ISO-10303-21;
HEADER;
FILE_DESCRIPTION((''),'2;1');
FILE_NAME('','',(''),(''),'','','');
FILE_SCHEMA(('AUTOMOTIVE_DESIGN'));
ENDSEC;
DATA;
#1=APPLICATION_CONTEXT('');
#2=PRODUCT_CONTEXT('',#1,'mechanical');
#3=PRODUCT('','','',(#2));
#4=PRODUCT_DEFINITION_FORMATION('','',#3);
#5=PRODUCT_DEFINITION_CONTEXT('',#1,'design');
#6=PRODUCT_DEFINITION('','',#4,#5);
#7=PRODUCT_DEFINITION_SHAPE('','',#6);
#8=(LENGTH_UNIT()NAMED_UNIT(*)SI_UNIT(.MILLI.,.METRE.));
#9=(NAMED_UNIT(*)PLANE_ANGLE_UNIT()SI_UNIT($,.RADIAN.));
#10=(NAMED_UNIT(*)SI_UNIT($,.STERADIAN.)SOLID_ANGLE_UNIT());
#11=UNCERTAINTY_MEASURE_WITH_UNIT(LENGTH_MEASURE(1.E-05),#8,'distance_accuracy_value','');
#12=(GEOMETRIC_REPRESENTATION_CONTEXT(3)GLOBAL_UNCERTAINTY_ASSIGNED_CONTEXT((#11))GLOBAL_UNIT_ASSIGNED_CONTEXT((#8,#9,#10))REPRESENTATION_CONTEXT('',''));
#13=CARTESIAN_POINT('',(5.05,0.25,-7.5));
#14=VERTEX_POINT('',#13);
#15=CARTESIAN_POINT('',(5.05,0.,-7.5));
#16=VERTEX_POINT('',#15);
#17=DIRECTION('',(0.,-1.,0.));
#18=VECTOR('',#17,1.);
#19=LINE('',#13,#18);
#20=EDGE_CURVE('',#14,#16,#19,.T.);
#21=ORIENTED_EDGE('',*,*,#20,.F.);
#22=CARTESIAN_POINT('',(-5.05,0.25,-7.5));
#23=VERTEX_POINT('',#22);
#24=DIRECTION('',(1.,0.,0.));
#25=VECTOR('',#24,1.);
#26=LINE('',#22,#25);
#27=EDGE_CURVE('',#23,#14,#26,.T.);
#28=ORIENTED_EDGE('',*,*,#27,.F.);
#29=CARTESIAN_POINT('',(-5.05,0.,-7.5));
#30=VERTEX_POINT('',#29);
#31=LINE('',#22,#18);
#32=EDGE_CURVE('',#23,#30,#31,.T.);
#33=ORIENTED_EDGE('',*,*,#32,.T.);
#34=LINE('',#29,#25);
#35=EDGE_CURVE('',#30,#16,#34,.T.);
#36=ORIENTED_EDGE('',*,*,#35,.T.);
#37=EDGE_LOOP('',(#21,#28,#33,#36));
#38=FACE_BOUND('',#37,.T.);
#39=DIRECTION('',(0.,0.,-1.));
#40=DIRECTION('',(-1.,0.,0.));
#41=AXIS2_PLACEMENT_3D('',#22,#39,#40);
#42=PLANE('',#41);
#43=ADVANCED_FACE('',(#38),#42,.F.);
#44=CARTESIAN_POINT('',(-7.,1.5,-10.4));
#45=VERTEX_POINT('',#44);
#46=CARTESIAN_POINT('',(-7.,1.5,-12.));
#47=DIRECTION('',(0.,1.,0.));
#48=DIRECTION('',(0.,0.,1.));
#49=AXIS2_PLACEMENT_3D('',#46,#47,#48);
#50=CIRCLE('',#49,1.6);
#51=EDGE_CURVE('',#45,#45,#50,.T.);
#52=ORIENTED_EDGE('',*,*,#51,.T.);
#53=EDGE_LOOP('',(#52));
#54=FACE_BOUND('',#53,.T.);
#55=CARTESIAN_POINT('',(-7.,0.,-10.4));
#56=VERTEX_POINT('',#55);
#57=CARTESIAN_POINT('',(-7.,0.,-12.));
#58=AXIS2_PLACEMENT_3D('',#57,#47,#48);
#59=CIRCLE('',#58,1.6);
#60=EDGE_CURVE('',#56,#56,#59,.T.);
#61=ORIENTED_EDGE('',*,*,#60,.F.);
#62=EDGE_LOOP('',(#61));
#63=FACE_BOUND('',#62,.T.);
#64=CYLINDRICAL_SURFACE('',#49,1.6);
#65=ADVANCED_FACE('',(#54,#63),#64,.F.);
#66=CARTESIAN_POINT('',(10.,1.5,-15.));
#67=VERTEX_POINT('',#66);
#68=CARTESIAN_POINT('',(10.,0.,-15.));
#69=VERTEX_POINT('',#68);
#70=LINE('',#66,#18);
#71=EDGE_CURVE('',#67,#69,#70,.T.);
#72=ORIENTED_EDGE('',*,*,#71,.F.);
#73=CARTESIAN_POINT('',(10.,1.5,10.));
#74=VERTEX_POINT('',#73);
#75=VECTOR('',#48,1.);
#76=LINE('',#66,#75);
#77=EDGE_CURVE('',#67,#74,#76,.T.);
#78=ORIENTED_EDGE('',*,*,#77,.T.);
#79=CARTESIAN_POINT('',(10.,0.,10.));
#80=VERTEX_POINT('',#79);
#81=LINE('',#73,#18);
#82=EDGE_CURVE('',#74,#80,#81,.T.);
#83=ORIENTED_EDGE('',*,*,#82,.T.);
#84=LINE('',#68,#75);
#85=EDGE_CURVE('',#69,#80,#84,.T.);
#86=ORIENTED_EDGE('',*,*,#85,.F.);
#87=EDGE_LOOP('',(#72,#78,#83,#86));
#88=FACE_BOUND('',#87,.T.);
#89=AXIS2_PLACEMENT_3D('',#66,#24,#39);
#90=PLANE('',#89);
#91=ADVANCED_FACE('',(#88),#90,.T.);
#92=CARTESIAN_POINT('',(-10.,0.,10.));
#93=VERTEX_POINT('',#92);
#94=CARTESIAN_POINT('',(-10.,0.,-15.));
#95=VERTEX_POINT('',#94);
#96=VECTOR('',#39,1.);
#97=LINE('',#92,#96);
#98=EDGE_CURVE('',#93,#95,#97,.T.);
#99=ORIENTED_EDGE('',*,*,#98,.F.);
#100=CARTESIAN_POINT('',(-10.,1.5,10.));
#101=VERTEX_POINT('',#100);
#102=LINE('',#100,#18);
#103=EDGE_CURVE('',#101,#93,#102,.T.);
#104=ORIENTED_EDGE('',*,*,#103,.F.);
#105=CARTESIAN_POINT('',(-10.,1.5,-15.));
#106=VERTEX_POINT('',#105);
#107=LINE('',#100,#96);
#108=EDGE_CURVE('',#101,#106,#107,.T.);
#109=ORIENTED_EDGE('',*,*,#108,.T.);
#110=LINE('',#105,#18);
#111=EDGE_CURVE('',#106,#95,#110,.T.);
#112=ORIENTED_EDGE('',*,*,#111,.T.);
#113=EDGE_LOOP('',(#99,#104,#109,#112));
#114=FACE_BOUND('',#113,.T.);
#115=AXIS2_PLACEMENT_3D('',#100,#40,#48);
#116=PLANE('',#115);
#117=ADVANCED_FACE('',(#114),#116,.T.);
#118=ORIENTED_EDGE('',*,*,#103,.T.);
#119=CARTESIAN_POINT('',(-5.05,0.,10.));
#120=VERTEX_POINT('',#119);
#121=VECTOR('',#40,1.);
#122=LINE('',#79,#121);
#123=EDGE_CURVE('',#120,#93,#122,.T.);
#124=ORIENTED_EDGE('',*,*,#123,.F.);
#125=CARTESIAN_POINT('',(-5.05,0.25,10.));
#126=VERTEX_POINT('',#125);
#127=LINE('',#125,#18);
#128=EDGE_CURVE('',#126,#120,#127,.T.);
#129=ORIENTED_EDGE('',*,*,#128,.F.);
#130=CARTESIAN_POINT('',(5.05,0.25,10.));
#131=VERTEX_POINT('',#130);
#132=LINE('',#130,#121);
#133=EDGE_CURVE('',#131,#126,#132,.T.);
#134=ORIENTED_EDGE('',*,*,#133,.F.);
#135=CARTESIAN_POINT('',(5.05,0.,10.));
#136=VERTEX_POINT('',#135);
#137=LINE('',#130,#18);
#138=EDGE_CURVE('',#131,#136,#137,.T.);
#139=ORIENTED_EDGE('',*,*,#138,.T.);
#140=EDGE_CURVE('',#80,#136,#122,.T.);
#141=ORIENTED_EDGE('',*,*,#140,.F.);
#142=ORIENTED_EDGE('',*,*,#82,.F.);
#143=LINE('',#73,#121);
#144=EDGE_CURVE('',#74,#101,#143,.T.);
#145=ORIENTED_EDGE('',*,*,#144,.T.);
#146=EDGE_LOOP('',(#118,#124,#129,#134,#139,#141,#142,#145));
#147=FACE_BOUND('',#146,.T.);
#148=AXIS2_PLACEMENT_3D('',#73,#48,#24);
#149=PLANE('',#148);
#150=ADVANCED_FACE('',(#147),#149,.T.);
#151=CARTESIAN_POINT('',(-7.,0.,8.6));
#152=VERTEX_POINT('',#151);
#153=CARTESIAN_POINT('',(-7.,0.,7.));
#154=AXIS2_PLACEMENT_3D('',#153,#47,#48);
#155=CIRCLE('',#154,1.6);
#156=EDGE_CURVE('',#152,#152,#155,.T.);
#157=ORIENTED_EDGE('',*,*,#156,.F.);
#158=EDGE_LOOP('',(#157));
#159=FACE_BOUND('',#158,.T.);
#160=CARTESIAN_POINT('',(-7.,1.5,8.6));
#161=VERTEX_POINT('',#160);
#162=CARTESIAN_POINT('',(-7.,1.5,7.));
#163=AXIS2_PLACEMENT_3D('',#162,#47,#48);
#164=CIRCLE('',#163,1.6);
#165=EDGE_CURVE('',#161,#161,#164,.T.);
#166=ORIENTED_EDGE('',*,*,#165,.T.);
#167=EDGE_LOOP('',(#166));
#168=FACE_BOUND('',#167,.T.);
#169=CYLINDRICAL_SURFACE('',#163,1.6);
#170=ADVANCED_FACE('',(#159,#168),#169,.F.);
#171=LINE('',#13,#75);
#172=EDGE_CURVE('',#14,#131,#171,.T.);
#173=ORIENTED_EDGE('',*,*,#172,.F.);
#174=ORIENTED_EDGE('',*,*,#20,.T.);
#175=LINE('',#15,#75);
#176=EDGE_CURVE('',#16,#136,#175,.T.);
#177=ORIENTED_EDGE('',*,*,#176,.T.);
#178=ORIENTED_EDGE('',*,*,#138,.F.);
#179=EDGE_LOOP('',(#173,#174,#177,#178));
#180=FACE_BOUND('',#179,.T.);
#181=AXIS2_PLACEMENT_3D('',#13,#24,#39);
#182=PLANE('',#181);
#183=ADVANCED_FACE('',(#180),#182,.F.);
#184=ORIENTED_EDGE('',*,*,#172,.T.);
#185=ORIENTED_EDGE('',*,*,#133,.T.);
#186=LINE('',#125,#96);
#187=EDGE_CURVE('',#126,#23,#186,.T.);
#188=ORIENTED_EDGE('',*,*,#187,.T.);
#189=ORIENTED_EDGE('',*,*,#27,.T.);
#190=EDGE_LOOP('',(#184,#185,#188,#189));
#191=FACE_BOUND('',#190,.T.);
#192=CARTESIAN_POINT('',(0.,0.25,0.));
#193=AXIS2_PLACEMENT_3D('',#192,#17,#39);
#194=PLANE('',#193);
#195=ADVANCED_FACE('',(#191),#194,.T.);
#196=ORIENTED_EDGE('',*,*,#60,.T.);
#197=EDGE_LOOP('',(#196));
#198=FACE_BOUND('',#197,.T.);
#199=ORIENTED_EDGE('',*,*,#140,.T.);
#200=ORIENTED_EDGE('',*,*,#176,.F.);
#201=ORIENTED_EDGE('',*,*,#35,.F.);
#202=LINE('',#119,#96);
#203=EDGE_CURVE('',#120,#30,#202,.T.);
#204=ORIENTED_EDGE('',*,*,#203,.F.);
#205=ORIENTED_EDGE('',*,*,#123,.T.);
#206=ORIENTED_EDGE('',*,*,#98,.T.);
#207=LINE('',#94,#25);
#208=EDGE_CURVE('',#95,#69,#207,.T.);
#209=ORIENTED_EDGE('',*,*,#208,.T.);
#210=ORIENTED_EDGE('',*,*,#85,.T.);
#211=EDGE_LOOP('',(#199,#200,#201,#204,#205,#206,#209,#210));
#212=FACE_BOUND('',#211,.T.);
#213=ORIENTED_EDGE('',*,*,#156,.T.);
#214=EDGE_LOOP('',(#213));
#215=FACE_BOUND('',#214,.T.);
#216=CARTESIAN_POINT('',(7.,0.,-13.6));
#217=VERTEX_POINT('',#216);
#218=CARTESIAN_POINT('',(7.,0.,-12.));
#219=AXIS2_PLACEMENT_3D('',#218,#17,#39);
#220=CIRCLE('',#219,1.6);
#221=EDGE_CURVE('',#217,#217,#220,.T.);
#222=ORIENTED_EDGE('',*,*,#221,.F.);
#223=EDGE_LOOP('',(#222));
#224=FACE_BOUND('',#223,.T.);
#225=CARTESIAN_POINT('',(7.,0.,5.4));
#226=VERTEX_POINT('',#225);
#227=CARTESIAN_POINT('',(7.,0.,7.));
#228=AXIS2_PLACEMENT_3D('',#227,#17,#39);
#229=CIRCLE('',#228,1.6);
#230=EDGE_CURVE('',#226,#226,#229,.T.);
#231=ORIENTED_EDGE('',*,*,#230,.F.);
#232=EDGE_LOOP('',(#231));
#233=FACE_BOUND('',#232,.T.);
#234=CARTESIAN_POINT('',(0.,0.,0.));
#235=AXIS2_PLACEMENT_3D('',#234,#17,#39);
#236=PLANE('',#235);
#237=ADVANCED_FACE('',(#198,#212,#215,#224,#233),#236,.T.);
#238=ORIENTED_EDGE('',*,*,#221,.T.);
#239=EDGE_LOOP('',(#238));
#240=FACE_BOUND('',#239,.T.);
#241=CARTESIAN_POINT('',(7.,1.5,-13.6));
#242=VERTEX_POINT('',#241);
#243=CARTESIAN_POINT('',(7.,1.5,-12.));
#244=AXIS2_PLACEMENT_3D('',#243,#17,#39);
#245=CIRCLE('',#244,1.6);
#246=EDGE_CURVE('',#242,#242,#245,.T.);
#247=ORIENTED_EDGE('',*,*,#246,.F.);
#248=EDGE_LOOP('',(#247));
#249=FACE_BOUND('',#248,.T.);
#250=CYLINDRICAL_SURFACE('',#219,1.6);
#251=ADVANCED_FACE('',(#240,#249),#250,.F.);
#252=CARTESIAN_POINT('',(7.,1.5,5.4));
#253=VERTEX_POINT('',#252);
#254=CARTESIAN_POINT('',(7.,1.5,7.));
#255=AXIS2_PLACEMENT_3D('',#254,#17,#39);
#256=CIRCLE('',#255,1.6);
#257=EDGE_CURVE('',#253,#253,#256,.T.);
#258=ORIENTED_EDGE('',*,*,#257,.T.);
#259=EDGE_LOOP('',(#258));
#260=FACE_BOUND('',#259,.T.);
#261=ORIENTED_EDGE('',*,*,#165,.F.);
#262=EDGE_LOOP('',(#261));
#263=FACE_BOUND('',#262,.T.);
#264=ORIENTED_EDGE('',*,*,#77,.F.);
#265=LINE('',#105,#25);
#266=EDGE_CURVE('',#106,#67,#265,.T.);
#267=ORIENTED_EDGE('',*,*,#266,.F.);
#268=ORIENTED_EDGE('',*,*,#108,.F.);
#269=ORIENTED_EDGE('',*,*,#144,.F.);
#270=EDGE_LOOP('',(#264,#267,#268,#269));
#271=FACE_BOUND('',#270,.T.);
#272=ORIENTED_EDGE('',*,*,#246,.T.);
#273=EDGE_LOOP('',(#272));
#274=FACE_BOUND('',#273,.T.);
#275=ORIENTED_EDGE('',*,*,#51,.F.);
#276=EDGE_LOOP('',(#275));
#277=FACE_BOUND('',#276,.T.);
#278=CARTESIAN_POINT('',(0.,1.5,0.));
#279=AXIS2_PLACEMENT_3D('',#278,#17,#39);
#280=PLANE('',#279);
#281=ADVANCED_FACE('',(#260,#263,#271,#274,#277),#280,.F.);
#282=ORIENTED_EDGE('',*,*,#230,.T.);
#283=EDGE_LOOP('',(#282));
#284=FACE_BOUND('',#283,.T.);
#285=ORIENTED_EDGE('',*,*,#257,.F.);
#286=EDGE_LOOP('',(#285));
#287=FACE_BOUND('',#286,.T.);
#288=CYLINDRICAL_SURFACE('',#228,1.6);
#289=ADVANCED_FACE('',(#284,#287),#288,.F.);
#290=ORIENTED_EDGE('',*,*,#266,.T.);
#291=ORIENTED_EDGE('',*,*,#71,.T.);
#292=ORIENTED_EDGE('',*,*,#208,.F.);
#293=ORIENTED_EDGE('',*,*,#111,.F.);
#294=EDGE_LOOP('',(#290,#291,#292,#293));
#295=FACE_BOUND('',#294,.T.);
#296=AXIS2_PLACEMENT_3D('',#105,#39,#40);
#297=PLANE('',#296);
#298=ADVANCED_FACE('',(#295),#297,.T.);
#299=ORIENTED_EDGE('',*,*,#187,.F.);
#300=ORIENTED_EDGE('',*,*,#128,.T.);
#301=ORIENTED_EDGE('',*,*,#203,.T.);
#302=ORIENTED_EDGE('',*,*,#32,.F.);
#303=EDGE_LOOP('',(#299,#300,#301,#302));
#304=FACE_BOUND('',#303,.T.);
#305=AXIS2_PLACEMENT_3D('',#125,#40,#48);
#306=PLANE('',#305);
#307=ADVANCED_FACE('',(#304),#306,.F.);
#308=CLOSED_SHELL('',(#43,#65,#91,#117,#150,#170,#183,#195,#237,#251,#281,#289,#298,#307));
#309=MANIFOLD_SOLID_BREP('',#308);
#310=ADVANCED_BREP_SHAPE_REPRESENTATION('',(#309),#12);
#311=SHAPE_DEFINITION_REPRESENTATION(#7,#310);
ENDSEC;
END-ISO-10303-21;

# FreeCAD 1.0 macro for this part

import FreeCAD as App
import Part
import Sketcher


def add_polygon(sketch, points):
    """Adds a closed chain of lines whose ends are joined by coincident constraints."""
    first, n = sketch.GeometryCount, len(points)
    for a, b in zip(points, points[1:] + points[:1]):
        sketch.addGeometry(Part.LineSegment(App.Vector(*a, 0), App.Vector(*b, 0)), False)
    for i in range(n):
        sketch.addConstraint(Sketcher.Constraint("Coincident", first + i, 2, first + (i + 1) % n, 1))

doc = App.newDocument("Part")
body = doc.addObject("PartDesign::Body", "Body")

# Sketch on XZ plane
sketch1 = doc.addObject("Sketcher::SketchObject", "Sketch")
body.addObject(sketch1)
sketch1.AttachmentSupport = (doc.XZ_Plane, [""])
sketch1.MapMode = "FlatFace"
add_polygon(sketch1, [(-10, 10), (-10, -15), (10, -15), (10, 10)])  # lines 0-3
sketch1.addConstraint([
    Sketcher.Constraint("Vertical", 0),
    Sketcher.Constraint("Horizontal", 1),
    Sketcher.Constraint("Vertical", 2),
    Sketcher.Constraint("Horizontal", 3),
    Sketcher.Constraint("DistanceX", 1, 1, 1, 2, 20.0),
    Sketcher.Constraint("DistanceY", 0, 2, 0, 1, 25.0),
    Sketcher.Constraint("DistanceX", 0, 2, -1, 1, 10.0),
    Sketcher.Constraint("DistanceY", 0, 2, -1, 1, 15.0),
])
pad1 = doc.addObject("PartDesign::Pad", "Pad")
body.addObject(pad1)
pad1.Profile = sketch1
pad1.Length = 1.5
pad1.Reversed = True

# Sketch on XZ plane
sketch2 = doc.addObject("Sketcher::SketchObject", "Sketch001")
body.addObject(sketch2)
sketch2.AttachmentSupport = (doc.XZ_Plane, [""])
sketch2.MapMode = "FlatFace"
add_polygon(sketch2, [(-5, 10), (-5, -8), (5, -8), (5, 10)])  # lines 0-3
sketch2.addConstraint([
    Sketcher.Constraint("Vertical", 0),
    Sketcher.Constraint("Horizontal", 1),
    Sketcher.Constraint("Vertical", 2),
    Sketcher.Constraint("Horizontal", 3),
    Sketcher.Constraint("DistanceX", 1, 1, 1, 2, 10.1),
    Sketcher.Constraint("DistanceY", 0, 2, 0, 1, 17.5),
    Sketcher.Constraint("DistanceY", -1, 1, 2, 2, 10.0),
    Sketcher.Constraint("DistanceX", 0, 2, -1, 1, 5.05),
])
pocket1 = doc.addObject("PartDesign::Pocket", "Pocket")
body.addObject(pocket1)
pocket1.Profile = sketch2
pocket1.Length = 0.25

# Sketch on XZ plane
sketch3 = doc.addObject("Sketcher::SketchObject", "Sketch002")
body.addObject(sketch3)
sketch3.AttachmentSupport = (doc.XZ_Plane, [""])
sketch3.MapMode = "FlatFace"
sketch3.addGeometry([
    Part.Circle(App.Vector(7, 7, 0), App.Vector(0, 0, 1), 1.6),
    Part.Circle(App.Vector(7, -12, 0), App.Vector(0, 0, 1), 1.6),
], False)
sketch3.addConstraint([
    Sketcher.Constraint("Equal", 0, 1),
    Sketcher.Constraint("Vertical", 0, 3, 1, 3),
    Sketcher.Constraint("Diameter", 0, 3.2),
    Sketcher.Constraint("DistanceX", -1, 1, 0, 3, 7.0),
    Sketcher.Constraint("DistanceY", -1, 1, 0, 3, 7.0),
    Sketcher.Constraint("DistanceY", 1, 3, -1, 1, 12.0),
])
doc.recompute()
hole = doc.addObject("PartDesign::Hole", "Hole")
body.addObject(hole)
hole.Profile = sketch3
hole.ThreadType = "None"
hole.Diameter = 3.2
hole.DepthType = "ThroughAll"

# Sketch on XZ plane
sketch4 = doc.addObject("Sketcher::SketchObject", "Sketch003")
body.addObject(sketch4)
sketch4.AttachmentSupport = (doc.XZ_Plane, [""])
sketch4.MapMode = "FlatFace"
sketch4.AttachmentOffset = App.Placement(App.Vector(0, 0, -1.5), App.Rotation())
sketch4.addGeometry([
    Part.Circle(App.Vector(-7, 7, 0), App.Vector(0, 0, 1), 1.6),
    Part.Circle(App.Vector(-7, -12, 0), App.Vector(0, 0, 1), 1.6),
], False)
sketch4.addConstraint([
    Sketcher.Constraint("Equal", 0, 1),
    Sketcher.Constraint("Vertical", 0, 3, 1, 3),
    Sketcher.Constraint("Diameter", 0, 3.2),
    Sketcher.Constraint("DistanceX", 0, 3, -1, 1, 7.0),
    Sketcher.Constraint("DistanceY", -1, 1, 0, 3, 7.0),
    Sketcher.Constraint("DistanceY", 1, 3, -1, 1, 12.0),
])
doc.recompute()
hole2 = doc.addObject("PartDesign::Hole", "Hole001")
body.addObject(hole2)
hole2.Profile = sketch4
hole2.ThreadType = "None"
hole2.Diameter = 3.2
hole2.DepthType = "ThroughAll"
hole2.Reversed = True

doc.recompute()
